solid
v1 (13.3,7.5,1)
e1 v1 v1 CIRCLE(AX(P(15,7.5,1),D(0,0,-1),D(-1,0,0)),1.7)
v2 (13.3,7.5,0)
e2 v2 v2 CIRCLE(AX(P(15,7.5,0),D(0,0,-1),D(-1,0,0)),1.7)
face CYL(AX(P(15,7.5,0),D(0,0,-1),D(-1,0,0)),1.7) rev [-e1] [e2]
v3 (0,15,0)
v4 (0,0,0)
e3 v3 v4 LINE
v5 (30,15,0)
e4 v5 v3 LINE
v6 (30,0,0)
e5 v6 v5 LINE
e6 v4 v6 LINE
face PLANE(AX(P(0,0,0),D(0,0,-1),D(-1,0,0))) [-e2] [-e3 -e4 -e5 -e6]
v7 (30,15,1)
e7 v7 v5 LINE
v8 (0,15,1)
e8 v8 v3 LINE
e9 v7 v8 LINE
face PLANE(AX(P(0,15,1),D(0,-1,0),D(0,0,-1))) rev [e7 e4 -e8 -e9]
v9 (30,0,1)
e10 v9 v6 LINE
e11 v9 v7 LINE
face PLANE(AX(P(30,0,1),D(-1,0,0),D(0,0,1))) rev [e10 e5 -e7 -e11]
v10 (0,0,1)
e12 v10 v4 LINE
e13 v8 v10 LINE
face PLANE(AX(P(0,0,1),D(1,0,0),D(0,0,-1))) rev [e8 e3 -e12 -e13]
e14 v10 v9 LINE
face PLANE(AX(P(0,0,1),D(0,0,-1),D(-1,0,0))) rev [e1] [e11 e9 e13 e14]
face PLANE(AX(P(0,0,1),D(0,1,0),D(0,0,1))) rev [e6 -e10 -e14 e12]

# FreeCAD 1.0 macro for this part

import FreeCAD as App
import Part
import Sketcher
Q = App.Units.Quantity


def add_polygon(sketch, points):
    """Adds a closed chain of lines whose ends are joined by coincident constraints."""
    first, n = sketch.GeometryCount, len(points)
    for a, b in zip(points, points[1:] + points[:1]):
        sketch.addGeometry(Part.LineSegment(App.Vector(*a, 0), App.Vector(*b, 0)), False)
    for i in range(n):
        sketch.addConstraint(Sketcher.Constraint("Coincident", first + i, 2, first + (i + 1) % n, 1))

doc = App.newDocument("Part")
body = doc.addObject("PartDesign::Body", "Body")

# Sketch on XY plane
sketch1 = body.newObject("Sketcher::SketchObject", "Sketch")
sketch1.AttachmentSupport = (doc.getObject("XY_Plane"), [""])
sketch1.MapMode = "FlatFace"
add_polygon(sketch1, [(0, 15), (0, 0), (30, 0), (30, 15)])  # lines 0-3
sketch1.addConstraint([
    Sketcher.Constraint("Vertical", 0),
    Sketcher.Constraint("Horizontal", 1),
    Sketcher.Constraint("Vertical", 2),
    Sketcher.Constraint("Horizontal", 3),
    Sketcher.Constraint("Coincident", 0, 2, -1, 1),
    Sketcher.Constraint("DistanceX", 1, 1, 1, 2, Q("30 mm")),
    Sketcher.Constraint("DistanceY", 0, 2, 0, 1, Q("15 mm")),
])
pad1 = body.newObject("PartDesign::Pad", "Pad")
pad1.Profile = sketch1
pad1.Length = 1

# Sketch on XY plane
sketch2 = body.newObject("Sketcher::SketchObject", "Sketch001")
sketch2.AttachmentSupport = (doc.getObject("XY_Plane"), [""])
sketch2.MapMode = "FlatFace"
sketch2.addGeometry(Part.Circle(App.Vector(15, 7.5, 0), App.Vector(0, 0, 1), 1.7), False)
sketch2.addConstraint([
    Sketcher.Constraint("Diameter", 0, Q("3.4 mm")),
    Sketcher.Constraint("DistanceX", -1, 1, 0, 3, Q("15 mm")),
    Sketcher.Constraint("DistanceY", -1, 1, 0, 3, Q("7.5 mm")),
])
doc.recompute()
hole = body.newObject("PartDesign::Hole", "Hole")
hole.Profile = sketch2
hole.ThreadType = "None"
hole.Diameter = 3.4
hole.DepthType = "ThroughAll"
hole.Reversed = True

doc.recompute()
